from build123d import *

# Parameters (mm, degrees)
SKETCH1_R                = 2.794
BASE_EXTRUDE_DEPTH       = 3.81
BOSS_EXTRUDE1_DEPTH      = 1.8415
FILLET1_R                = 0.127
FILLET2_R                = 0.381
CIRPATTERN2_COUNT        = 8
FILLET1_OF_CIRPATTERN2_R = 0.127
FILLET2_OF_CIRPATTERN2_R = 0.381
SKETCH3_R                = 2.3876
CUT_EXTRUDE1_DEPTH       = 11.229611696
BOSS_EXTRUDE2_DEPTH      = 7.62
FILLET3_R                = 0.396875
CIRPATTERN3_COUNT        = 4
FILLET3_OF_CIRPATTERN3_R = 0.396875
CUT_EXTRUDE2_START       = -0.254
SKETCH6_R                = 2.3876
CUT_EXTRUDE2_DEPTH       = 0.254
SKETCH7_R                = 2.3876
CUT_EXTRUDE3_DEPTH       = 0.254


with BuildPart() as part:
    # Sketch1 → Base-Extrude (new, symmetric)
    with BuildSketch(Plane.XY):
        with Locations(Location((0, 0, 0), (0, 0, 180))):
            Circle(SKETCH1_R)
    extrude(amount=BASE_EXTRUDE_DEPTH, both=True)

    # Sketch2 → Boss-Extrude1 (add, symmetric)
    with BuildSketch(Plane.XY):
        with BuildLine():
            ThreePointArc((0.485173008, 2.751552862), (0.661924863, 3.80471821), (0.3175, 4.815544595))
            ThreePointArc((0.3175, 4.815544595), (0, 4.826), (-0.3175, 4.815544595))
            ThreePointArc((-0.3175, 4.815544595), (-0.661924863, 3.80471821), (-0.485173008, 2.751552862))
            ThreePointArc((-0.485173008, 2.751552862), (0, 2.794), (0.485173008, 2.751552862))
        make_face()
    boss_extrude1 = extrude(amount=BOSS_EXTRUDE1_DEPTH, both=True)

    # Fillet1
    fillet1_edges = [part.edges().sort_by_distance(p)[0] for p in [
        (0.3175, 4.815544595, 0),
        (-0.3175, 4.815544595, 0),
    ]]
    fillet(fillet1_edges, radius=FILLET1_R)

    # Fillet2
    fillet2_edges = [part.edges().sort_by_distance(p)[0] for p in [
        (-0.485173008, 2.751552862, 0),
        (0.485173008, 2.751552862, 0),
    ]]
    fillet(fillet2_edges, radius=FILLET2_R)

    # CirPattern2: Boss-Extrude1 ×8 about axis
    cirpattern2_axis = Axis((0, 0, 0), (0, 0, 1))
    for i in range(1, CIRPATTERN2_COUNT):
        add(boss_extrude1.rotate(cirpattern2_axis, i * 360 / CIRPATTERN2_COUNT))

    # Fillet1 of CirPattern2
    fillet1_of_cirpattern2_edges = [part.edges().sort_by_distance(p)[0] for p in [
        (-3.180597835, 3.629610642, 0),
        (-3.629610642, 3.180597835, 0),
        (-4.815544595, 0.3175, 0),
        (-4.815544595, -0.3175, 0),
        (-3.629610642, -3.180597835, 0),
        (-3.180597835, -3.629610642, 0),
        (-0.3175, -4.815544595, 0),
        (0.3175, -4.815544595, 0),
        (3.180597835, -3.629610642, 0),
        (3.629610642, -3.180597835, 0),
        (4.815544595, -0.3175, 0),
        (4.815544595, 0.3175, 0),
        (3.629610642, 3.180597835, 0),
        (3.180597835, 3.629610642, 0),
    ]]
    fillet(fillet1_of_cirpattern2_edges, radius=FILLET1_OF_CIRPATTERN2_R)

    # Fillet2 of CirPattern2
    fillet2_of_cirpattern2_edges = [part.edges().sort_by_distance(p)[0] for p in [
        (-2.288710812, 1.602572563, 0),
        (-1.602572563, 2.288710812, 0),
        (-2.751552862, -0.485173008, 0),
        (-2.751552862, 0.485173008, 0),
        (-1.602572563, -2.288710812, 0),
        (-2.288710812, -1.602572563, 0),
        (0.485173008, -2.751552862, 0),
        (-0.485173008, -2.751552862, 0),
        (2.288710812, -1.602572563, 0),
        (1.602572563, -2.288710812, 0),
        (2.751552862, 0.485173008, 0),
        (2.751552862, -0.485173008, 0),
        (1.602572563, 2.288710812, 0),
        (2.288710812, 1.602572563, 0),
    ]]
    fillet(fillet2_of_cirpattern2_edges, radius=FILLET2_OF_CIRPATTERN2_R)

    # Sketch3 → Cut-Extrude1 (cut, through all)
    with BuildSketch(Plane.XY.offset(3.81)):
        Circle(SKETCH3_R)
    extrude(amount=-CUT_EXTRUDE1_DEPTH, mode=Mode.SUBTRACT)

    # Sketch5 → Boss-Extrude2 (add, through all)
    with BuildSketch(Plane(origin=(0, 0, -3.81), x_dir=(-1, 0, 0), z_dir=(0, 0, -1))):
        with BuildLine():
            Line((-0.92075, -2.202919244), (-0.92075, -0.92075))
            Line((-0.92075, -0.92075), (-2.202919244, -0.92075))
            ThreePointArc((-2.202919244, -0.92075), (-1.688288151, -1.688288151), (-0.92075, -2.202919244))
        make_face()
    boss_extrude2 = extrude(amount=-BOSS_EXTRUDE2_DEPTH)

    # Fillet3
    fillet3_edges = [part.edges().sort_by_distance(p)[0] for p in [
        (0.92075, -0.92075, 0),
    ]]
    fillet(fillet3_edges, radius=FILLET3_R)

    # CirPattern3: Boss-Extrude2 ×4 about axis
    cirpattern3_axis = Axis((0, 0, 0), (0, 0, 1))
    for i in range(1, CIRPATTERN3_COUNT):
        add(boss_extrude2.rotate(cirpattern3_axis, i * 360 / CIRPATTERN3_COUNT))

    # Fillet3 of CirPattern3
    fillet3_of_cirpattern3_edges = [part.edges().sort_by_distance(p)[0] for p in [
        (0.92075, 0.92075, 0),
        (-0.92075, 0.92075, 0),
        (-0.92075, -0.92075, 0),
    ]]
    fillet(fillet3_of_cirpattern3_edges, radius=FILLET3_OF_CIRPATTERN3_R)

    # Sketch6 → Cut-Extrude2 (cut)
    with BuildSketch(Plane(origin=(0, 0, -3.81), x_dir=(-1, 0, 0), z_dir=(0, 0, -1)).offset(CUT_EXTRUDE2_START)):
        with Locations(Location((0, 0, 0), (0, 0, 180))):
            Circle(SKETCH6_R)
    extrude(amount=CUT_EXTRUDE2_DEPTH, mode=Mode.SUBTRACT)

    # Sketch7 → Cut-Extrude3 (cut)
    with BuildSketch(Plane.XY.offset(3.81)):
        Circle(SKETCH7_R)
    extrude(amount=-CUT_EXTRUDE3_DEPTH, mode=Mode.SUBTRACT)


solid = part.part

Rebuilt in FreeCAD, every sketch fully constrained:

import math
import FreeCAD as App
import Part
import Sketcher
from FreeCAD import Vector
Q = App.Units.Quantity


def edges_at(feature, points):
    """Names of the edges that pass closest to the given points."""
    edges = feature.Shape.Edges
    near = lambda p: min(range(len(edges)), key=lambda i: edges[i].distToShape(Part.Vertex(*p))[0])
    return sorted({f"Edge{near(p) + 1}" for p in points})

doc = App.newDocument("Part")
body = doc.addObject("PartDesign::Body", "Body")

# Sketch on XY plane
sketch1 = body.newObject("Sketcher::SketchObject", "Sketch")
sketch1.AttachmentSupport = (doc.getObject("XY_Plane"), [""])
sketch1.MapMode = "FlatFace"
sketch1.addGeometry(Part.Circle(Vector(0, 0, 0), Vector(0, 0, 1), 2.794), False)
sketch1.addConstraint([
    Sketcher.Constraint("Coincident", 0, 3, -1, 1),
    Sketcher.Constraint("Diameter", 0, Q("0.22 in")),
])
pad1 = body.newObject("PartDesign::Pad", "Pad")
pad1.Profile = sketch1
pad1.Length = Q("0.3 in")
pad1.Midplane = True

# Sketch on XY plane
sketch2 = body.newObject("Sketcher::SketchObject", "Sketch001")
sketch2.AttachmentSupport = (doc.getObject("XY_Plane"), [""])
sketch2.MapMode = "FlatFace"
sketch2.addGeometry([
    Part.ArcOfCircle(Part.Circle(Vector(-1.511852, 3.628127, 0), Vector(0, 0, 1), 2.180938), math.radians(-23.698584), math.radians(32.987289)),
    Part.ArcOfCircle(Part.Circle(Vector(0, 0, 0), Vector(0, 0, 1), 4.826), math.radians(86.227816), math.radians(93.772184)),
    Part.ArcOfCircle(Part.Circle(Vector(1.511852, 3.628127, 0), Vector(0, 0, 1), 2.180938), math.radians(147.012711), math.radians(203.698584)),
    Part.ArcOfCircle(Part.Circle(Vector(0, 0, 0), Vector(0, 0, 1), 2.794), math.radians(80), math.radians(100)),
], False)
sketch2.addConstraint([
    Sketcher.Constraint("Coincident", 0, 2, 1, 1),
    Sketcher.Constraint("Coincident", 1, 2, 2, 1),
    Sketcher.Constraint("Coincident", 2, 2, 3, 2),
    Sketcher.Constraint("Coincident", 3, 1, 0, 1),
    Sketcher.Constraint("Coincident", 1, 3, -1, 1),
    Sketcher.Constraint("Coincident", 3, 3, -1, 1),
    Sketcher.Constraint("Equal", 0, 2),
    Sketcher.Constraint("Symmetric", 0, 3, 2, 3, -2),
    Sketcher.Constraint("Radius", 1, Q("0.19 in")),
    Sketcher.Constraint("Radius", 3, Q("0.11 in")),
    Sketcher.Constraint("DistanceX", 1, 2, 0, 2, Q("0.025 in")),
    Sketcher.Constraint("Radius", 0, 2.180938),
    Sketcher.Constraint("DistanceX", 0, 3, -1, 1, 1.511852),
])
pad2 = body.newObject("PartDesign::Pad", "Pad001")
pad2.Profile = sketch2
pad2.Length = Q("0.145 in")
pad2.Midplane = True
doc.recompute()

fillet = body.newObject("PartDesign::Fillet", "Fillet")
fillet.Base = (pad2, edges_at(pad2, [(0.318, 4.816, 0), (-0.318, 4.816, 0)]))
fillet.Radius = Q("0.005 in")
doc.recompute()

fillet2 = body.newObject("PartDesign::Fillet", "Fillet001")
fillet2.Base = (fillet, edges_at(fillet, [(-0.485, 2.752, 0), (0.485, 2.752, 0)]))
fillet2.Radius = Q("0.015 in")
doc.recompute()

polarpattern = body.newObject("PartDesign::PolarPattern", "PolarPattern")
polarpattern.Originals = [pad2]
polarpattern.Axis = (doc.getObject("Z_Axis"), [""])
polarpattern.Angle = 360
polarpattern.Occurrences = 8
body.Tip = polarpattern
doc.recompute()

fillet3 = body.newObject("PartDesign::Fillet", "Fillet002")
fillet3.Base = (polarpattern, edges_at(polarpattern, [
    (-3.181, 3.63, 0),
    (-3.63, 3.181, 0),
    (-4.816, 0.318, 0),
    (-4.816, -0.318, 0),
    (-3.63, -3.181, 0),
    (-3.181, -3.63, 0),
    (-0.318, -4.816, 0),
    (0.318, -4.816, 0),
    (3.181, -3.63, 0),
    (3.63, -3.181, 0),
    (4.816, -0.318, 0),
    (4.816, 0.318, 0),
    (3.63, 3.181, 0),
    (3.181, 3.63, 0),
]))
fillet3.Radius = Q("0.005 in")
doc.recompute()

fillet4 = body.newObject("PartDesign::Fillet", "Fillet003")
fillet4.Base = (fillet3, edges_at(fillet3, [
    (-2.289, 1.603, 0),
    (-1.603, 2.289, 0),
    (-2.752, -0.485, 0),
    (-2.752, 0.485, 0),
    (-1.603, -2.289, 0),
    (-2.289, -1.603, 0),
    (0.485, -2.752, 0),
    (-0.485, -2.752, 0),
    (2.289, -1.603, 0),
    (1.603, -2.289, 0),
    (2.752, 0.485, 0),
    (2.752, -0.485, 0),
    (1.603, 2.289, 0),
    (2.289, 1.603, 0),
]))
fillet4.Radius = Q("0.015 in")

# Sketch on XY plane
sketch3 = body.newObject("Sketcher::SketchObject", "Sketch002")
sketch3.AttachmentSupport = (doc.getObject("XY_Plane"), [""])
sketch3.MapMode = "FlatFace"
sketch3.AttachmentOffset = App.Placement(Vector(0, 0, 0.15 * 25.4), App.Rotation())
sketch3.addGeometry(Part.Circle(Vector(0, 0, 0), Vector(0, 0, 1), 2.3876), False)
sketch3.addConstraint([
    Sketcher.Constraint("Coincident", 0, 3, -1, 1),
    Sketcher.Constraint("Diameter", 0, Q("0.188 in")),
])
pocket1 = body.newObject("PartDesign::Pocket", "Pocket")
pocket1.Profile = sketch3
pocket1.Type = "ThroughAll"

# Sketch on XY plane
sketch4 = body.newObject("Sketcher::SketchObject", "Sketch003")
sketch4.AttachmentSupport = (doc.getObject("XY_Plane"), [""])
sketch4.MapMode = "FlatFace"
sketch4.AttachmentOffset = App.Placement(Vector(0, 0, -0.15 * 25.4), App.Rotation())
sketch4.addGeometry([
    Part.LineSegment(Vector(0.92075, -2.202919, 0), Vector(0.92075, -0.92075, 0)),
    Part.LineSegment(Vector(0.92075, -0.92075, 0), Vector(2.202919, -0.92075, 0)),
    Part.ArcOfCircle(Part.Circle(Vector(0, 0, 0), Vector(0, 0, 1), 2.3876), math.radians(-67.316628), math.radians(-22.683372)),
], False)
sketch4.addConstraint([
    Sketcher.Constraint("Coincident", 0, 2, 1, 1),
    Sketcher.Constraint("Coincident", 1, 2, 2, 2),
    Sketcher.Constraint("Coincident", 2, 1, 0, 1),
    Sketcher.Constraint("Vertical", 0),
    Sketcher.Constraint("Horizontal", 1),
    Sketcher.Constraint("Coincident", 2, 3, -1, 1),
    Sketcher.Constraint("Equal", 1, 0),
    Sketcher.Constraint("Radius", 2, Q("0.094 in")),
    Sketcher.Constraint("DistanceX", 1, 1, 1, 2, 1.282169),
])
pad3 = body.newObject("PartDesign::Pad", "Pad002")
pad3.Profile = sketch4
pad3.Length = Q("0.3 in")
doc.recompute()

fillet5 = body.newObject("PartDesign::Fillet", "Fillet004")
fillet5.Base = (pad3, edges_at(pad3, [(0.921, -0.921, 0)]))
fillet5.Radius = Q("0.015625 in")
doc.recompute()

polarpattern2 = body.newObject("PartDesign::PolarPattern", "PolarPattern001")
polarpattern2.Originals = [pad3]
polarpattern2.Axis = (doc.getObject("Z_Axis"), [""])
polarpattern2.Angle = 360
polarpattern2.Occurrences = 4
body.Tip = polarpattern2
doc.recompute()

fillet6 = body.newObject("PartDesign::Fillet", "Fillet005")
fillet6.Base = (polarpattern2, edges_at(polarpattern2, [(0.921, 0.921, 0), (-0.921, 0.921, 0), (-0.921, -0.921, 0)]))
fillet6.Radius = Q("0.015625 in")

# Sketch on XY plane
sketch5 = body.newObject("Sketcher::SketchObject", "Sketch004")
sketch5.AttachmentSupport = (doc.getObject("XY_Plane"), [""])
sketch5.MapMode = "FlatFace"
sketch5.AttachmentOffset = App.Placement(Vector(0, 0, -0.14 * 25.4), App.Rotation())
sketch5.addGeometry(Part.Circle(Vector(0, 0, 0), Vector(0, 0, 1), 2.3876), False)
sketch5.addConstraint([
    Sketcher.Constraint("Coincident", 0, 3, -1, 1),
    Sketcher.Constraint("Diameter", 0, Q("0.188 in")),
])
pocket2 = body.newObject("PartDesign::Pocket", "Pocket001")
pocket2.Profile = sketch5
pocket2.Length = Q("0.01 in")

# Sketch on XY plane
sketch6 = body.newObject("Sketcher::SketchObject", "Sketch005")
sketch6.AttachmentSupport = (doc.getObject("XY_Plane"), [""])
sketch6.MapMode = "FlatFace"
sketch6.AttachmentOffset = App.Placement(Vector(0, 0, 0.15 * 25.4), App.Rotation())
sketch6.addGeometry(Part.Circle(Vector(0, 0, 0), Vector(0, 0, 1), 2.3876), False)
sketch6.addConstraint([
    Sketcher.Constraint("Coincident", 0, 3, -1, 1),
    Sketcher.Constraint("Diameter", 0, Q("0.188 in")),
])
pocket3 = body.newObject("PartDesign::Pocket", "Pocket002")
pocket3.Profile = sketch6
pocket3.Length = Q("0.01 in")

doc.recompute()
